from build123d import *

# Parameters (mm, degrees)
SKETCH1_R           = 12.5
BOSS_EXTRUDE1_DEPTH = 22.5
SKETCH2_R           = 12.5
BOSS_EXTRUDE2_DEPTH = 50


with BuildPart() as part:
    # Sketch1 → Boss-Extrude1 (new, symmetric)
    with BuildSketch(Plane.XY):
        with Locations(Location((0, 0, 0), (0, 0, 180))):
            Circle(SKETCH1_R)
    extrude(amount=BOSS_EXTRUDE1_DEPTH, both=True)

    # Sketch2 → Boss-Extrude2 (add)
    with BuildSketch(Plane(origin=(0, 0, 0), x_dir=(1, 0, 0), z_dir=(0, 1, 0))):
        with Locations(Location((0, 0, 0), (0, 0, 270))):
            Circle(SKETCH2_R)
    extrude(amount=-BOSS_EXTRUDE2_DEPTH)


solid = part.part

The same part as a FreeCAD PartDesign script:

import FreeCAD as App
import Part
import Sketcher
Q = App.Units.Quantity

doc = App.newDocument("Part")
body = doc.addObject("PartDesign::Body", "Body")

sketch1 = body.newObject("Sketcher::SketchObject", "Sketch")
sketch1.AttachmentSupport = (doc.getObject("XY_Plane"), [""])
sketch1.MapMode = "FlatFace"
sketch1.addGeometry(Part.Circle(App.Vector(0, 0, 0), App.Vector(0, 0, 1), 12), False)
sketch1.addConstraint(Sketcher.Constraint("Coincident", 0, 3, -1, 1))
sketch1.addConstraint(Sketcher.Constraint("Diameter", 0, Q("25 mm")))
pad1 = body.newObject("PartDesign::Pad", "Pad")
pad1.Profile = sketch1
pad1.Length = 45
pad1.Midplane = True

sketch2 = body.newObject("Sketcher::SketchObject", "Sketch001")
sketch2.AttachmentSupport = (doc.getObject("XZ_Plane"), [""])
sketch2.MapMode = "FlatFace"
sketch2.addGeometry(Part.Circle(App.Vector(0, 0, 0), App.Vector(0, 0, 1), 12), False)
sketch2.addConstraint(Sketcher.Constraint("Coincident", 0, 3, -1, 1))
sketch2.addConstraint(Sketcher.Constraint("Diameter", 0, Q("25 mm")))
pad2 = body.newObject("PartDesign::Pad", "Pad001")
pad2.Profile = sketch2
pad2.Length = 50

doc.recompute()
